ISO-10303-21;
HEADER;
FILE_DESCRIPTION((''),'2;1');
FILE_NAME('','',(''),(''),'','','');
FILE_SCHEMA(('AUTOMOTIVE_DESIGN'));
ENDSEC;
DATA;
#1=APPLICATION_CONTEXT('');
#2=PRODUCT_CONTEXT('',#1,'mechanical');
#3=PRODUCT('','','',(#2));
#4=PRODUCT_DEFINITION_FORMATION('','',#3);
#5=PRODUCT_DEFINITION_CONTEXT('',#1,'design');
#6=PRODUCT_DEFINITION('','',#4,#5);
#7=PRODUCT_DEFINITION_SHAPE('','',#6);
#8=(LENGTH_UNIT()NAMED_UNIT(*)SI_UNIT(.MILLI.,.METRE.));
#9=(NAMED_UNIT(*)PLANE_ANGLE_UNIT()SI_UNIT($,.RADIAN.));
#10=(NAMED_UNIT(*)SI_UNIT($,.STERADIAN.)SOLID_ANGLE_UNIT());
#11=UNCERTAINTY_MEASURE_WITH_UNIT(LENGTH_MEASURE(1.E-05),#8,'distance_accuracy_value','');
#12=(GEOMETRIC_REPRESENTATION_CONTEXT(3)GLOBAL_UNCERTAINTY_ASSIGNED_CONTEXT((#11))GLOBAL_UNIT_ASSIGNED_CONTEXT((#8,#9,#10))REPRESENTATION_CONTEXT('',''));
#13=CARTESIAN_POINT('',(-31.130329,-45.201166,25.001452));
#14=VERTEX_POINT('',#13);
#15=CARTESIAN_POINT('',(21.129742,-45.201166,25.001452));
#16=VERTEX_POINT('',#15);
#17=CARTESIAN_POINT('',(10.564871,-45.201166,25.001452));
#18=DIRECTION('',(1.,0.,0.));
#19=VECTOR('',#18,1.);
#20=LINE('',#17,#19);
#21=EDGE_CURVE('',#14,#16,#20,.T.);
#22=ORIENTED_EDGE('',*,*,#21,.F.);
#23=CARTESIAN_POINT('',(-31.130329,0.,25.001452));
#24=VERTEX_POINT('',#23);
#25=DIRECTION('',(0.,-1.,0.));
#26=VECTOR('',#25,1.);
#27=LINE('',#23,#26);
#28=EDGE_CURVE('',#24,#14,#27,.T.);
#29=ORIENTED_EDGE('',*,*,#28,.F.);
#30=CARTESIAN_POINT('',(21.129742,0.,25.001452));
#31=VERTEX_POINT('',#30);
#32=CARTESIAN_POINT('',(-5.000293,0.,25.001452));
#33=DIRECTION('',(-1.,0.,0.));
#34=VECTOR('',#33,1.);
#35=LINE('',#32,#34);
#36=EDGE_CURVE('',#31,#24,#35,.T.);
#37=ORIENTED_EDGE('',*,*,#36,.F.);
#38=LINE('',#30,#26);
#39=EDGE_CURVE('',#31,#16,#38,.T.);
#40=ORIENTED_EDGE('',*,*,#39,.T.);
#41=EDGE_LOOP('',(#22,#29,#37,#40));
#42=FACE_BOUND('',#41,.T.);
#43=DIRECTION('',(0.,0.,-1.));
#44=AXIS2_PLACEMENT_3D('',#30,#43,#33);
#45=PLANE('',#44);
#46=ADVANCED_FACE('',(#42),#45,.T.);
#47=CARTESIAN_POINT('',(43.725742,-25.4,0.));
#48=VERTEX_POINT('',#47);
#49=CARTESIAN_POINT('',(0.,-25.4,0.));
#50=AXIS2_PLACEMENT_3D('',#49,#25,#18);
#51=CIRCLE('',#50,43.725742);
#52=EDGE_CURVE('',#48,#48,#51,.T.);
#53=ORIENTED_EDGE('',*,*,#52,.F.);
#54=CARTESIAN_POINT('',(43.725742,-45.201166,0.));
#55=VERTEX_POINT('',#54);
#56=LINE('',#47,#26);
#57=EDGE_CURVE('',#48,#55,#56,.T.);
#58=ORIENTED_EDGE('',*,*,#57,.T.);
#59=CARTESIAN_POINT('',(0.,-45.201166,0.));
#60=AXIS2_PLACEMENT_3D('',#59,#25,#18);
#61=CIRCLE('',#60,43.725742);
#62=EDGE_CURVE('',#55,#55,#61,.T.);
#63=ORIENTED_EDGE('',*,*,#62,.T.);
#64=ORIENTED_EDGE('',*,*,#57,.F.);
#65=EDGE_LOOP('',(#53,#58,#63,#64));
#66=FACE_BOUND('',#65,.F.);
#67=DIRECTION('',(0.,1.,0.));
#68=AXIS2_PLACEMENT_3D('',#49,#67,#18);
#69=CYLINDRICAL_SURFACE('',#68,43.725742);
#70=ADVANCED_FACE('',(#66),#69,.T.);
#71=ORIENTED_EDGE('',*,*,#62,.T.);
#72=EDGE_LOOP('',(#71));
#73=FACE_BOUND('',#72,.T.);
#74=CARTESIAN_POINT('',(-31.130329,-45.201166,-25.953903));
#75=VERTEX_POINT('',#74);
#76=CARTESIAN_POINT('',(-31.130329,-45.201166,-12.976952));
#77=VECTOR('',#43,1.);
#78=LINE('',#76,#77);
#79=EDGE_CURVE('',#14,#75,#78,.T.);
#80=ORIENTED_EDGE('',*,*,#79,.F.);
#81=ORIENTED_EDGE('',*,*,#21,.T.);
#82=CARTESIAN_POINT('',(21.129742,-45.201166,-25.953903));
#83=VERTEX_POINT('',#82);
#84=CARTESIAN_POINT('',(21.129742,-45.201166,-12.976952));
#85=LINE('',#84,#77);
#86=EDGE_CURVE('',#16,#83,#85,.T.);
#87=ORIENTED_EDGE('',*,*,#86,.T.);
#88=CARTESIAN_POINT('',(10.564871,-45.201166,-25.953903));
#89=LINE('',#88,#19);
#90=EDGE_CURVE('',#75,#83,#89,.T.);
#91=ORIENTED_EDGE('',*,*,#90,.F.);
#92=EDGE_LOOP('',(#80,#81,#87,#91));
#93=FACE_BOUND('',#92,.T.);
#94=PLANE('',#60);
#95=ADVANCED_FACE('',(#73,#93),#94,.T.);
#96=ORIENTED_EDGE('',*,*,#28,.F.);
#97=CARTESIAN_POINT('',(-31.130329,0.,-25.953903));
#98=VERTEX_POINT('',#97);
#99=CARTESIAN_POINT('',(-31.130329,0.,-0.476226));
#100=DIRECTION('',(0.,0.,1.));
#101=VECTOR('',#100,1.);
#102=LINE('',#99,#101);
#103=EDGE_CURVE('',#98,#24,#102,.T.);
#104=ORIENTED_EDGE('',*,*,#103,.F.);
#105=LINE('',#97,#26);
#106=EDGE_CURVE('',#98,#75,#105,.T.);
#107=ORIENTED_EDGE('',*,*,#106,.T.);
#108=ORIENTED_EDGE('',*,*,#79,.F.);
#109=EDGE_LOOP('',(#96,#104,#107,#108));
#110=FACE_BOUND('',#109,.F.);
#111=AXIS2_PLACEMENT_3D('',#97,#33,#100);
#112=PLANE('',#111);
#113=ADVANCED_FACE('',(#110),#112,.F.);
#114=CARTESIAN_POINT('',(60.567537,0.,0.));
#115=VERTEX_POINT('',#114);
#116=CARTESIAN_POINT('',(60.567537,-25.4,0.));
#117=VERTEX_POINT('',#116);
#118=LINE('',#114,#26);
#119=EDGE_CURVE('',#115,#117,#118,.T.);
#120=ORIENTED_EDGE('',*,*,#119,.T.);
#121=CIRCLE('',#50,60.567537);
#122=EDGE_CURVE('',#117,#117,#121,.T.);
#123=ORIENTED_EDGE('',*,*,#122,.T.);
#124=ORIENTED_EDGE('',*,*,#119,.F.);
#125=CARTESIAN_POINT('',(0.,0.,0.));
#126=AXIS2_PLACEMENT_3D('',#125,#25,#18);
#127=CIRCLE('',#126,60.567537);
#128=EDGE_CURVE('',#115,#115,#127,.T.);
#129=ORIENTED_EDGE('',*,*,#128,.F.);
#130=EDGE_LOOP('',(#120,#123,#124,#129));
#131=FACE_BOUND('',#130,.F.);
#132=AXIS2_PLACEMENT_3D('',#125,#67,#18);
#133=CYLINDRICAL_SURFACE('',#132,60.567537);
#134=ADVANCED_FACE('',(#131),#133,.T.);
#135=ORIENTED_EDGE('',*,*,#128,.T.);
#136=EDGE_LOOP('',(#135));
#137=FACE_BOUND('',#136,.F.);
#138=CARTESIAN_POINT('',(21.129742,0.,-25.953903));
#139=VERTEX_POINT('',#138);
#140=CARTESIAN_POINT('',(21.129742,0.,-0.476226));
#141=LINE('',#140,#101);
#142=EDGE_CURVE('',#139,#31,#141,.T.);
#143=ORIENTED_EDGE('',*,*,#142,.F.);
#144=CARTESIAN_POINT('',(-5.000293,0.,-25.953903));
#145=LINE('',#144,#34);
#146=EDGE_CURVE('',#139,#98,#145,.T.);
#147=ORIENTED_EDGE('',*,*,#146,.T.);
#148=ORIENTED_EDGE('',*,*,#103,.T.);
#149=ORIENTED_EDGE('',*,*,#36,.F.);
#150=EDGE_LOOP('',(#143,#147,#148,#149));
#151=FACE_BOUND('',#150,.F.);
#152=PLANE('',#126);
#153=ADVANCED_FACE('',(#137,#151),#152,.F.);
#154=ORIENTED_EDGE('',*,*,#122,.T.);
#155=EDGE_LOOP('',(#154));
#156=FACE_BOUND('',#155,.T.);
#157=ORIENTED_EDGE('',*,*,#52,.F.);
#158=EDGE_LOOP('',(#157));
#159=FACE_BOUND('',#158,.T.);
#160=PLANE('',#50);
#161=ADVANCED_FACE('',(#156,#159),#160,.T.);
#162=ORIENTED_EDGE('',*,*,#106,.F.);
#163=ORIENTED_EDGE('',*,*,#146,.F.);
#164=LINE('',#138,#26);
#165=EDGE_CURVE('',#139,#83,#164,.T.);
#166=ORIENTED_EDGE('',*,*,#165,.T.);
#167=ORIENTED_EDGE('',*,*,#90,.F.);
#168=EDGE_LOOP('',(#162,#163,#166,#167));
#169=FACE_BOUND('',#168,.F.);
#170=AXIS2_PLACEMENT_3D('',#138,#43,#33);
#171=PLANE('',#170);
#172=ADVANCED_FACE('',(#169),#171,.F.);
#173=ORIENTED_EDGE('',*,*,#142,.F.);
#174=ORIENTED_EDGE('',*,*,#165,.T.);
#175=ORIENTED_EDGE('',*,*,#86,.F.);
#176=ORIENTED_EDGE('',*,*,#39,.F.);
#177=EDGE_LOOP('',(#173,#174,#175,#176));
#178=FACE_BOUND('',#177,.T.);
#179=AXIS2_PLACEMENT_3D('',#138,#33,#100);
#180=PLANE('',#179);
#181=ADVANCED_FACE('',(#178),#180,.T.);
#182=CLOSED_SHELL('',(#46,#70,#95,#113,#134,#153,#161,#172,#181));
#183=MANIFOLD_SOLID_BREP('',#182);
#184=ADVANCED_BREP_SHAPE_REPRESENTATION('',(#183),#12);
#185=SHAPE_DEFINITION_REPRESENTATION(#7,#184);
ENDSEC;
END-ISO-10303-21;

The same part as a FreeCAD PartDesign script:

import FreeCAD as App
import Part
import Sketcher

V = App.Vector
Q = App.Units.Quantity


def add_polygon(sketch, points):
    """Adds a closed chain of lines whose ends are joined by coincident constraints."""
    first, n = sketch.GeometryCount, len(points)
    for a, b in zip(points, points[1:] + points[:1]):
        sketch.addGeometry(Part.LineSegment(App.Vector(*a, 0), App.Vector(*b, 0)), False)
    for i in range(n):
        sketch.addConstraint(Sketcher.Constraint("Coincident", first + i, 2, first + (i + 1) % n, 1))

doc = App.newDocument("Part")
body = doc.addObject("PartDesign::Body", "Body")

sketch1 = body.newObject("Sketcher::SketchObject", "Sketch")
sketch1.AttachmentSupport = (doc.getObject("XZ_Plane"), [""])
sketch1.MapMode = "FlatFace"
sketch1.addGeometry(Part.Circle(V(0, 0, 0), V(0, 0, 1), 61), False)
sketch1.addConstraint(Sketcher.Constraint("Coincident", 0, 3, -1, 1))
sketch1.addConstraint(Sketcher.Constraint("Diameter", 0, Q("121.135074 mm")))
pad1 = body.newObject("PartDesign::Pad", "Pad")
pad1.Profile = sketch1
pad1.Length = Q("1 in")

sketch2 = body.newObject("Sketcher::SketchObject", "Sketch001")
sketch2.AttachmentSupport = (doc.getObject("XZ_Plane"), [""])
sketch2.MapMode = "FlatFace"
sketch2.AttachmentOffset = App.Placement(V(0, 0, 1 * 25.4), App.Rotation())
sketch2.addGeometry(Part.Circle(V(0, 0, 0), V(0, 0, 1), 44), False)
sketch2.addConstraint(Sketcher.Constraint("Coincident", 0, 3, -1, 1))
sketch2.addConstraint(Sketcher.Constraint("Diameter", 0, Q("87.451484 mm")))
pad2 = body.newObject("PartDesign::Pad", "Pad001")
pad2.Profile = sketch2
pad2.Length = 19.801166

sketch3 = body.newObject("Sketcher::SketchObject", "Sketch002")
sketch3.AttachmentSupport = (doc.getObject("XZ_Plane"), [""])
sketch3.MapMode = "FlatFace"
add_polygon(sketch3, [(21, 25), (21, -26), (-31, -26), (-31, 25)])
sketch3.addConstraint(Sketcher.Constraint("Vertical", 0))
sketch3.addConstraint(Sketcher.Constraint("Horizontal", 1))
sketch3.addConstraint(Sketcher.Constraint("Vertical", 2))
sketch3.addConstraint(Sketcher.Constraint("Horizontal", 3))
sketch3.addConstraint(Sketcher.Constraint("DistanceX", 1, 2, 1, 1, Q("52.260071 mm")))
sketch3.addConstraint(Sketcher.Constraint("DistanceY", 0, 2, 0, 1, Q("50.955355 mm")))
sketch3.addConstraint(Sketcher.Constraint("DistanceX", 1, 2, -1, 1, Q("31.130329 mm")))
sketch3.addConstraint(Sketcher.Constraint("DistanceY", -1, 1, 2, 2, Q("25.001452 mm")))
pocket1 = body.newObject("PartDesign::Pocket", "Pocket")
pocket1.Profile = sketch3
pocket1.Length = 118.063478
pocket1.Reversed = True

doc.recompute()
